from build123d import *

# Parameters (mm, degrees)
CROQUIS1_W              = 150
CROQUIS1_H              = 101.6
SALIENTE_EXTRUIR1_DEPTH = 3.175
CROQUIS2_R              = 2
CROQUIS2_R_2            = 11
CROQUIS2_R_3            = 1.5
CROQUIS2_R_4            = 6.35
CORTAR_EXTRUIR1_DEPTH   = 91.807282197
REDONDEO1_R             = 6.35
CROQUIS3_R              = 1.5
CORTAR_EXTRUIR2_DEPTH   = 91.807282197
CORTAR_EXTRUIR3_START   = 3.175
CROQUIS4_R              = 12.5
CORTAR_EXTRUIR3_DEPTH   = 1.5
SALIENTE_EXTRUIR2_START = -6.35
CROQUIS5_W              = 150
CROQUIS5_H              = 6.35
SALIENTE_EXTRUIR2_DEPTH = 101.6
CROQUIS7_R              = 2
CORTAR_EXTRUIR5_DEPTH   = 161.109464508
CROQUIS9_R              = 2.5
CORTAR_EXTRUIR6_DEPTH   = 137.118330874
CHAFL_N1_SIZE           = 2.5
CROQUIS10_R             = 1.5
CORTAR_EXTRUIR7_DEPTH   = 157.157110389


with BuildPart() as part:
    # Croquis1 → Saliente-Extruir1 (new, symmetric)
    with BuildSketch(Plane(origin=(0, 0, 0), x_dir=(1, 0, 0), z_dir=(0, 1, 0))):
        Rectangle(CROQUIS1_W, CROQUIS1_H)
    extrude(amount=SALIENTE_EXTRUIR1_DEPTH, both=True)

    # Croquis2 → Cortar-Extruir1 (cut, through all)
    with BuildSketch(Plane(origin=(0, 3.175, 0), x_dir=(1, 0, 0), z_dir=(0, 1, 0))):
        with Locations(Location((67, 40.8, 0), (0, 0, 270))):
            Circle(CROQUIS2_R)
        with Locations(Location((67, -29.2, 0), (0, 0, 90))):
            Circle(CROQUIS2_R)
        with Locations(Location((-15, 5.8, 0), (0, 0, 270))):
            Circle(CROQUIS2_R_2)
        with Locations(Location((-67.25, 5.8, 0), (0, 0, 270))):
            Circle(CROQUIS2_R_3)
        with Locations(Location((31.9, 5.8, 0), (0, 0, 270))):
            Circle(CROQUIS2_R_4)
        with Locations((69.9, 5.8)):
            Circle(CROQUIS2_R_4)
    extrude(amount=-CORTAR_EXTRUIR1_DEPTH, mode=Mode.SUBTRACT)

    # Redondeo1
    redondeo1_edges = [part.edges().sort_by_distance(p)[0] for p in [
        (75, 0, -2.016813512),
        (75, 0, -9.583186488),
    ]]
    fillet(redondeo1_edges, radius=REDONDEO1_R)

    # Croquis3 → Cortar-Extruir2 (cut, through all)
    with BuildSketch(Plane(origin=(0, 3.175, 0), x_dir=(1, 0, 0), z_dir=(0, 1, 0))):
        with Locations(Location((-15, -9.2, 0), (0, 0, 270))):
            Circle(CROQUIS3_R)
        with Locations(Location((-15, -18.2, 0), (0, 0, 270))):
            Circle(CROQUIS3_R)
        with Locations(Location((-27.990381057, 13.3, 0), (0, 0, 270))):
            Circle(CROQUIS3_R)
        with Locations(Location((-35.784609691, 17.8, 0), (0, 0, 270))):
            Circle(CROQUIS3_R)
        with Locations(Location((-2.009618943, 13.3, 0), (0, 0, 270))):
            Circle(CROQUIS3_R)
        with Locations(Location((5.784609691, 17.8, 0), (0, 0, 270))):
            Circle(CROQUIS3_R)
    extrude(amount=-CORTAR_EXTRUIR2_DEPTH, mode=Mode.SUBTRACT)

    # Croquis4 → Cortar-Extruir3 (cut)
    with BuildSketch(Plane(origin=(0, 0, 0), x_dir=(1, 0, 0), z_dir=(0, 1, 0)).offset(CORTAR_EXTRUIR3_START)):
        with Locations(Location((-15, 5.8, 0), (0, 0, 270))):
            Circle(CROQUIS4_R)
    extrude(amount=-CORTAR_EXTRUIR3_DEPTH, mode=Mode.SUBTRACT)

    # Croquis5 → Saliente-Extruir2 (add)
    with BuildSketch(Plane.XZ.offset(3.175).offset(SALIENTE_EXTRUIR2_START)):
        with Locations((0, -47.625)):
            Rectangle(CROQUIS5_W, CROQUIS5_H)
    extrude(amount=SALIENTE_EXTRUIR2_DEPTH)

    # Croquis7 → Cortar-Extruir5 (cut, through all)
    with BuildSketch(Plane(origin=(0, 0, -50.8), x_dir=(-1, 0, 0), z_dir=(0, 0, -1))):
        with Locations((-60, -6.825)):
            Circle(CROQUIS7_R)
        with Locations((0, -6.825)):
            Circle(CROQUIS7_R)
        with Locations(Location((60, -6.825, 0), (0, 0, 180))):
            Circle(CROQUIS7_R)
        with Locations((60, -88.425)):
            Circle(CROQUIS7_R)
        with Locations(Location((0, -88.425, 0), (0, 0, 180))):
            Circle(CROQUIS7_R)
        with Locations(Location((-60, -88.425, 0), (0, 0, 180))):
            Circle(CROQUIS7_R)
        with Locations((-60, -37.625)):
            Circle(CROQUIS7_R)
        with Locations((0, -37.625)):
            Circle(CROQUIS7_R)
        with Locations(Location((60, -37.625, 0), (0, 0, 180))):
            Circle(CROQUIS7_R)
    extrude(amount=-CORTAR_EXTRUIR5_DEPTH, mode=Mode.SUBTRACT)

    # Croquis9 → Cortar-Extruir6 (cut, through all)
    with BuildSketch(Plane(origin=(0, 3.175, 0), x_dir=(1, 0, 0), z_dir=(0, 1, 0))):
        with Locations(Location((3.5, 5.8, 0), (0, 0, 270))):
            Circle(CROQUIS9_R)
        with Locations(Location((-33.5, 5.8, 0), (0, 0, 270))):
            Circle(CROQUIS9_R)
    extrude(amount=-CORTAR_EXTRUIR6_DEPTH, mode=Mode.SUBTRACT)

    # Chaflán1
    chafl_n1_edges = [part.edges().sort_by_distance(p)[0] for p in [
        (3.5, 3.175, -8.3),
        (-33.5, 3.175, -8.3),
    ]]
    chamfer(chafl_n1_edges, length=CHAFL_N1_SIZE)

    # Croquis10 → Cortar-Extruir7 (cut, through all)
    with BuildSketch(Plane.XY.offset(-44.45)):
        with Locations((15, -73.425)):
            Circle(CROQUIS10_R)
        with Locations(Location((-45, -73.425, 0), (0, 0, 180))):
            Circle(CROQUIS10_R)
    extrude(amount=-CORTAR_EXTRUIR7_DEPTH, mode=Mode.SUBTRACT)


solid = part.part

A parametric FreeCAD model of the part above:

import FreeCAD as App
import Part
import Sketcher

V = App.Vector


def edges_at(feature, points):
    """Names of the edges that pass closest to the given points."""
    edges = feature.Shape.Edges
    near = lambda p: min(range(len(edges)), key=lambda i: edges[i].distToShape(Part.Vertex(*p))[0])
    return sorted({f"Edge{near(p) + 1}" for p in points})


def add_polygon(sketch, points):
    """Adds a closed chain of lines whose ends are joined by coincident constraints."""
    first, n = sketch.GeometryCount, len(points)
    for a, b in zip(points, points[1:] + points[:1]):
        sketch.addGeometry(Part.LineSegment(App.Vector(*a, 0), App.Vector(*b, 0)), False)
    for i in range(n):
        sketch.addConstraint(Sketcher.Constraint("Coincident", first + i, 2, first + (i + 1) % n, 1))

doc = App.newDocument("Part")
params = doc.addObject("Spreadsheet::Sheet", "Params")
for row, (alias, value) in enumerate([
    ("sketch1_width", "150 mm"),
    ("sketch1_height", "101.6 mm"),
    ("pad1_length", "6.35 mm"),
    ("sketch2_diameter", "4 mm"),
    ("sketch2_diameter2", "22 mm"),
    ("sketch2_diameter3", "3 mm"),
    ("sketch2_diameter4", "12.7 mm"),
    ("fillet_radius", "6.35 mm"),
    ("sketch3_diameter", "3 mm"),
    ("sketch4_diameter", "25 mm"),
    ("pocket3_length", "1.5 mm"),
    ("sketch5_width", "150 mm"),
    ("sketch5_height", "6.35 mm"),
    ("pad2_length", "101.6 mm"),
    ("sketch6_diameter", "4 mm"),
    ("sketch7_diameter", "5 mm"),
    ("chamfer_size", "2.5 mm"),
    ("sketch8_diameter", "3 mm"),
], start=1):
    params.set(f"A{row}", alias)
    params.set(f"B{row}", "=" + value)
    params.setAlias(f"B{row}", alias)

body = doc.addObject("PartDesign::Body", "Body")

sketch1 = body.newObject("Sketcher::SketchObject", "Sketch")
sketch1.AttachmentSupport = (doc.getObject("XZ_Plane"), [""])
sketch1.MapMode = "FlatFace"
add_polygon(sketch1, [(-75, -51), (-75, 51), (75, 51), (75, -51)])
sketch1.addConstraint(Sketcher.Constraint("Vertical", 0))
sketch1.addConstraint(Sketcher.Constraint("Horizontal", 1))
sketch1.addConstraint(Sketcher.Constraint("Vertical", 2))
sketch1.addConstraint(Sketcher.Constraint("Horizontal", 3))
sketch1.addConstraint(Sketcher.Constraint("Symmetric", 0, 2, 2, 2, -1, 1))
sketch1.addConstraint(Sketcher.Constraint("DistanceX", 1, 1, 1, 2, 150.0))
sketch1.addConstraint(Sketcher.Constraint("DistanceY", 0, 1, 0, 2, 101.6))
sketch1.setExpression("Constraints[9]", "Params.sketch1_width")
sketch1.setExpression("Constraints[10]", "Params.sketch1_height")
pad1 = body.newObject("PartDesign::Pad", "Pad")
pad1.Profile = sketch1
pad1.setExpression("Length", "Params.pad1_length")
pad1.Midplane = True

sketch2 = body.newObject("Sketcher::SketchObject", "Sketch001")
sketch2.AttachmentSupport = (doc.getObject("XZ_Plane"), [""])
sketch2.MapMode = "FlatFace"
sketch2.AttachmentOffset = App.Placement(V(0, 0, -3.175), App.Rotation())
sketch2.addGeometry(Part.Circle(V(67, -40.8, 0), V(0, 0, 1), 2), False)
sketch2.addGeometry(Part.Circle(V(67, 29.2, 0), V(0, 0, 1), 2), False)
sketch2.addGeometry(Part.Circle(V(-15, -5.8, 0), V(0, 0, 1), 11), False)
sketch2.addGeometry(Part.Circle(V(-67.2, -5.8, 0), V(0, 0, 1), 1.5), False)
sketch2.addGeometry(Part.Circle(V(31.9, -5.8, 0), V(0, 0, 1), 6.3), False)
sketch2.addGeometry(Part.Circle(V(69.9, -5.8, 0), V(0, 0, 1), 6.3), False)
sketch2.addConstraint(Sketcher.Constraint("Equal", 0, 1))
sketch2.addConstraint(Sketcher.Constraint("Equal", 4, 5))
sketch2.addConstraint(Sketcher.Constraint("Horizontal", 2, 3, 3, 3))
sketch2.addConstraint(Sketcher.Constraint("Horizontal", 3, 3, 4, 3))
sketch2.addConstraint(Sketcher.Constraint("Horizontal", 4, 3, 5, 3))
sketch2.addConstraint(Sketcher.Constraint("Vertical", 0, 3, 1, 3))
sketch2.addConstraint(Sketcher.Constraint("Diameter", 0, 4.0))
sketch2.addConstraint(Sketcher.Constraint("Diameter", 2, 22.0))
sketch2.addConstraint(Sketcher.Constraint("Diameter", 3, 3.0))
sketch2.addConstraint(Sketcher.Constraint("Diameter", 4, 12.7))
sketch2.addConstraint(Sketcher.Constraint("DistanceX", -1, 1, 0, 3, 67.0))
sketch2.addConstraint(Sketcher.Constraint("DistanceX", 2, 3, -1, 1, 15.0))
sketch2.addConstraint(Sketcher.Constraint("DistanceY", 0, 3, 1, 3, 70.0))
sketch2.addConstraint(Sketcher.Constraint("DistanceY", 0, 3, 2, 3, 35.0))
sketch2.addConstraint(Sketcher.Constraint("DistanceX", 4, 3, 5, 3, 38.0))
sketch2.addConstraint(Sketcher.Constraint("DistanceY", 0, 3, -1, 1, 40.8))
sketch2.addConstraint(Sketcher.Constraint("DistanceX", -1, 1, 4, 3, 31.9))
sketch2.addConstraint(Sketcher.Constraint("DistanceX", 3, 3, -1, 1, 67.25))
sketch2.setExpression("Constraints[6]", "Params.sketch2_diameter")
sketch2.setExpression("Constraints[7]", "Params.sketch2_diameter2")
sketch2.setExpression("Constraints[8]", "Params.sketch2_diameter3")
sketch2.setExpression("Constraints[9]", "Params.sketch2_diameter4")
pocket1 = body.newObject("PartDesign::Pocket", "Pocket")
pocket1.Profile = sketch2
pocket1.Type = "ThroughAll"
pocket1.Reversed = True
doc.recompute()

fillet = body.newObject("PartDesign::Fillet", "Fillet")
fillet.Base = (pocket1, edges_at(pocket1, [(75, 0, -2.017), (75, 0, -9.583)]))
fillet.setExpression("Radius", "Params.fillet_radius")

sketch3 = body.newObject("Sketcher::SketchObject", "Sketch002")
sketch3.AttachmentSupport = (doc.getObject("XZ_Plane"), [""])
sketch3.MapMode = "FlatFace"
sketch3.AttachmentOffset = App.Placement(V(0, 0, -3.175), App.Rotation())
sketch3.addGeometry(Part.Circle(V(-15, 9.2, 0), V(0, 0, 1), 1.5), False)
sketch3.addGeometry(Part.Circle(V(-15, 18.2, 0), V(0, 0, 1), 1.5), False)
sketch3.addGeometry(Part.Circle(V(-28, -13.3, 0), V(0, 0, 1), 1.5), False)
sketch3.addGeometry(Part.Circle(V(-35.8, -17.8, 0), V(0, 0, 1), 1.5), False)
sketch3.addGeometry(Part.Circle(V(-2, -13.3, 0), V(0, 0, 1), 1.5), False)
sketch3.addGeometry(Part.Circle(V(5.8, -17.8, 0), V(0, 0, 1), 1.5), False)
sketch3.addConstraint(Sketcher.Constraint("Equal", 0, 1))
sketch3.addConstraint(Sketcher.Constraint("Equal", 1, 2))
sketch3.addConstraint(Sketcher.Constraint("Equal", 2, 3))
sketch3.addConstraint(Sketcher.Constraint("Equal", 3, 4))
sketch3.addConstraint(Sketcher.Constraint("Equal", 4, 5))
sketch3.addConstraint(Sketcher.Constraint("Horizontal", 2, 3, 4, 3))
sketch3.addConstraint(Sketcher.Constraint("Horizontal", 3, 3, 5, 3))
sketch3.addConstraint(Sketcher.Constraint("Vertical", 0, 3, 1, 3))
sketch3.addConstraint(Sketcher.Constraint("Diameter", 0, 3.0))
sketch3.addConstraint(Sketcher.Constraint("DistanceX", 0, 3, -1, 1, 15.0))
sketch3.addConstraint(Sketcher.Constraint("DistanceY", 0, 3, 1, 3, 9.0))
sketch3.addConstraint(Sketcher.Constraint("DistanceY", 3, 3, 0, 3, 27.0))
sketch3.addConstraint(Sketcher.Constraint("DistanceY", -1, 1, 0, 3, 9.2))
sketch3.addConstraint(Sketcher.Constraint("DistanceY", 2, 3, -1, 1, 13.3))
sketch3.addConstraint(Sketcher.Constraint("DistanceX", 2, 3, -1, 1, 27.990381))
sketch3.addConstraint(Sketcher.Constraint("DistanceX", 3, 3, -1, 1, 35.78461))
sketch3.addConstraint(Sketcher.Constraint("DistanceX", 4, 3, -1, 1, 2.009619))
sketch3.addConstraint(Sketcher.Constraint("DistanceX", -1, 1, 5, 3, 5.78461))
sketch3.setExpression("Constraints[8]", "Params.sketch3_diameter")
pocket2 = body.newObject("PartDesign::Pocket", "Pocket001")
pocket2.Profile = sketch3
pocket2.Type = "ThroughAll"
pocket2.Reversed = True

sketch4 = body.newObject("Sketcher::SketchObject", "Sketch003")
sketch4.AttachmentSupport = (doc.getObject("XZ_Plane"), [""])
sketch4.MapMode = "FlatFace"
sketch4.AttachmentOffset = App.Placement(V(0, 0, -3.175), App.Rotation())
sketch4.addGeometry(Part.Circle(V(-15, -6, 0), V(0, 0, 1), 12), False)
sketch4.addConstraint(Sketcher.Constraint("Diameter", 0, 25.0))
sketch4.addConstraint(Sketcher.Constraint("DistanceX", 0, 3, -1, 1, 15.0))
sketch4.addConstraint(Sketcher.Constraint("DistanceY", 0, 3, -1, 1, 5.8))
sketch4.setExpression("Constraints[0]", "Params.sketch4_diameter")
pocket3 = body.newObject("PartDesign::Pocket", "Pocket002")
pocket3.Profile = sketch4
pocket3.setExpression("Length", "Params.pocket3_length")
pocket3.Reversed = True

sketch5 = body.newObject("Sketcher::SketchObject", "Sketch004")
sketch5.AttachmentSupport = (doc.getObject("XZ_Plane"), [""])
sketch5.MapMode = "FlatFace"
sketch5.AttachmentOffset = App.Placement(V(0, 0, -3.175), App.Rotation())
add_polygon(sketch5, [(-75, -44), (-75, -51), (75, -51), (75, -44)])
sketch5.addConstraint(Sketcher.Constraint("Vertical", 0))
sketch5.addConstraint(Sketcher.Constraint("Horizontal", 1))
sketch5.addConstraint(Sketcher.Constraint("Vertical", 2))
sketch5.addConstraint(Sketcher.Constraint("Horizontal", 3))
sketch5.addConstraint(Sketcher.Constraint("DistanceX", 1, 1, 1, 2, 150.0))
sketch5.addConstraint(Sketcher.Constraint("DistanceX", 0, 2, -1, 1, 75.0))
sketch5.addConstraint(Sketcher.Constraint("DistanceY", 0, 2, 0, 1, 6.35))
sketch5.addConstraint(Sketcher.Constraint("DistanceY", 0, 2, -1, 1, 50.8))
sketch5.setExpression("Constraints[8]", "Params.sketch5_width")
sketch5.setExpression("Constraints[10]", "Params.sketch5_height")
pad2 = body.newObject("PartDesign::Pad", "Pad001")
pad2.Profile = sketch5
pad2.setExpression("Length", "Params.pad2_length")

sketch6 = body.newObject("Sketcher::SketchObject", "Sketch005")
sketch6.AttachmentSupport = (doc.getObject("XY_Plane"), [""])
sketch6.MapMode = "FlatFace"
sketch6.AttachmentOffset = App.Placement(V(0, 0, -50.8), App.Rotation())
sketch6.addGeometry(Part.Circle(V(60, -6.8, 0), V(0, 0, 1), 2), False)
sketch6.addGeometry(Part.Circle(V(0, -6.8, 0), V(0, 0, 1), 2), False)
sketch6.addGeometry(Part.Circle(V(-60, -6.8, 0), V(0, 0, 1), 2), False)
sketch6.addGeometry(Part.Circle(V(-60, -88.4, 0), V(0, 0, 1), 2), False)
sketch6.addGeometry(Part.Circle(V(0, -88.4, 0), V(0, 0, 1), 2), False)
sketch6.addGeometry(Part.Circle(V(60, -88.4, 0), V(0, 0, 1), 2), False)
sketch6.addGeometry(Part.Circle(V(60, -37.6, 0), V(0, 0, 1), 2), False)
sketch6.addGeometry(Part.Circle(V(0, -37.6, 0), V(0, 0, 1), 2), False)
sketch6.addGeometry(Part.Circle(V(-60, -37.6, 0), V(0, 0, 1), 2), False)
sketch6.addConstraint(Sketcher.Constraint("Equal", 0, 1))
sketch6.addConstraint(Sketcher.Constraint("Equal", 1, 2))
sketch6.addConstraint(Sketcher.Constraint("Equal", 2, 3))
sketch6.addConstraint(Sketcher.Constraint("Equal", 3, 4))
sketch6.addConstraint(Sketcher.Constraint("Equal", 4, 5))
sketch6.addConstraint(Sketcher.Constraint("Equal", 5, 6))
sketch6.addConstraint(Sketcher.Constraint("Equal", 6, 7))
sketch6.addConstraint(Sketcher.Constraint("Equal", 7, 8))
sketch6.addConstraint(Sketcher.Constraint("Symmetric", 0, 3, 2, 3, -2))
sketch6.addConstraint(Sketcher.Constraint("Symmetric", 3, 3, 5, 3, -2))
sketch6.addConstraint(Sketcher.Constraint("Symmetric", 6, 3, 8, 3, -2))
sketch6.addConstraint(Sketcher.Constraint("PointOnObject", 1, 3, -2))
sketch6.addConstraint(Sketcher.Constraint("PointOnObject", 4, 3, -2))
sketch6.addConstraint(Sketcher.Constraint("PointOnObject", 7, 3, -2))
sketch6.addConstraint(Sketcher.Constraint("Horizontal", 0, 3, 1, 3))
sketch6.addConstraint(Sketcher.Constraint("Horizontal", 3, 3, 4, 3))
sketch6.addConstraint(Sketcher.Constraint("Horizontal", 6, 3, 7, 3))
sketch6.addConstraint(Sketcher.Constraint("Vertical", 2, 3, 3, 3))
sketch6.addConstraint(Sketcher.Constraint("Vertical", 5, 3, 6, 3))
sketch6.addConstraint(Sketcher.Constraint("Diameter", 0, 4.0))
sketch6.addConstraint(Sketcher.Constraint("DistanceX", -1, 1, 0, 3, 60.0))
sketch6.addConstraint(Sketcher.Constraint("DistanceY", 3, 3, 2, 3, 81.6))
sketch6.addConstraint(Sketcher.Constraint("DistanceY", 6, 3, 0, 3, 30.8))
sketch6.addConstraint(Sketcher.Constraint("DistanceY", 0, 3, -1, 1, 6.825))
sketch6.setExpression("Constraints[19]", "Params.sketch6_diameter")
pocket4 = body.newObject("PartDesign::Pocket", "Pocket003")
pocket4.Profile = sketch6
pocket4.Type = "ThroughAll"
pocket4.Reversed = True

sketch7 = body.newObject("Sketcher::SketchObject", "Sketch006")
sketch7.AttachmentSupport = (doc.getObject("XZ_Plane"), [""])
sketch7.MapMode = "FlatFace"
sketch7.AttachmentOffset = App.Placement(V(0, 0, -3.175), App.Rotation())
sketch7.addGeometry(Part.Circle(V(3.5, -5.8, 0), V(0, 0, 1), 2.5), False)
sketch7.addGeometry(Part.Circle(V(-33.5, -5.8, 0), V(0, 0, 1), 2.5), False)
sketch7.addConstraint(Sketcher.Constraint("Equal", 0, 1))
sketch7.addConstraint(Sketcher.Constraint("Horizontal", 0, 3, 1, 3))
sketch7.addConstraint(Sketcher.Constraint("Diameter", 0, 5.0))
sketch7.addConstraint(Sketcher.Constraint("DistanceX", 1, 3, 0, 3, 37.0))
sketch7.addConstraint(Sketcher.Constraint("DistanceX", -1, 1, 0, 3, 3.5))
sketch7.addConstraint(Sketcher.Constraint("DistanceY", 0, 3, -1, 1, 5.8))
sketch7.setExpression("Constraints[2]", "Params.sketch7_diameter")
pocket5 = body.newObject("PartDesign::Pocket", "Pocket004")
pocket5.Profile = sketch7
pocket5.Type = "ThroughAll"
pocket5.Reversed = True
doc.recompute()

chamfer = body.newObject("PartDesign::Chamfer", "Chamfer")
chamfer.Base = (pocket5, edges_at(pocket5, [(3.5, 3.175, -8.3), (-33.5, 3.175, -8.3)]))
chamfer.setExpression("Size", "Params.chamfer_size")

sketch8 = body.newObject("Sketcher::SketchObject", "Sketch007")
sketch8.AttachmentSupport = (doc.getObject("XY_Plane"), [""])
sketch8.MapMode = "FlatFace"
sketch8.AttachmentOffset = App.Placement(V(0, 0, -44.45), App.Rotation())
sketch8.addGeometry(Part.Circle(V(15, -73.4, 0), V(0, 0, 1), 1.5), False)
sketch8.addGeometry(Part.Circle(V(-45, -73.4, 0), V(0, 0, 1), 1.5), False)
sketch8.addConstraint(Sketcher.Constraint("Equal", 0, 1))
sketch8.addConstraint(Sketcher.Constraint("Horizontal", 0, 3, 1, 3))
sketch8.addConstraint(Sketcher.Constraint("Diameter", 0, 3.0))
sketch8.addConstraint(Sketcher.Constraint("DistanceX", -1, 1, 0, 3, 15.0))
sketch8.addConstraint(Sketcher.Constraint("DistanceX", 1, 3, -1, 1, 45.0))
sketch8.addConstraint(Sketcher.Constraint("DistanceY", 0, 3, -1, 1, 73.425))
sketch8.setExpression("Constraints[2]", "Params.sketch8_diameter")
pocket6 = body.newObject("PartDesign::Pocket", "Pocket005")
pocket6.Profile = sketch8
pocket6.Type = "ThroughAll"

doc.recompute()
